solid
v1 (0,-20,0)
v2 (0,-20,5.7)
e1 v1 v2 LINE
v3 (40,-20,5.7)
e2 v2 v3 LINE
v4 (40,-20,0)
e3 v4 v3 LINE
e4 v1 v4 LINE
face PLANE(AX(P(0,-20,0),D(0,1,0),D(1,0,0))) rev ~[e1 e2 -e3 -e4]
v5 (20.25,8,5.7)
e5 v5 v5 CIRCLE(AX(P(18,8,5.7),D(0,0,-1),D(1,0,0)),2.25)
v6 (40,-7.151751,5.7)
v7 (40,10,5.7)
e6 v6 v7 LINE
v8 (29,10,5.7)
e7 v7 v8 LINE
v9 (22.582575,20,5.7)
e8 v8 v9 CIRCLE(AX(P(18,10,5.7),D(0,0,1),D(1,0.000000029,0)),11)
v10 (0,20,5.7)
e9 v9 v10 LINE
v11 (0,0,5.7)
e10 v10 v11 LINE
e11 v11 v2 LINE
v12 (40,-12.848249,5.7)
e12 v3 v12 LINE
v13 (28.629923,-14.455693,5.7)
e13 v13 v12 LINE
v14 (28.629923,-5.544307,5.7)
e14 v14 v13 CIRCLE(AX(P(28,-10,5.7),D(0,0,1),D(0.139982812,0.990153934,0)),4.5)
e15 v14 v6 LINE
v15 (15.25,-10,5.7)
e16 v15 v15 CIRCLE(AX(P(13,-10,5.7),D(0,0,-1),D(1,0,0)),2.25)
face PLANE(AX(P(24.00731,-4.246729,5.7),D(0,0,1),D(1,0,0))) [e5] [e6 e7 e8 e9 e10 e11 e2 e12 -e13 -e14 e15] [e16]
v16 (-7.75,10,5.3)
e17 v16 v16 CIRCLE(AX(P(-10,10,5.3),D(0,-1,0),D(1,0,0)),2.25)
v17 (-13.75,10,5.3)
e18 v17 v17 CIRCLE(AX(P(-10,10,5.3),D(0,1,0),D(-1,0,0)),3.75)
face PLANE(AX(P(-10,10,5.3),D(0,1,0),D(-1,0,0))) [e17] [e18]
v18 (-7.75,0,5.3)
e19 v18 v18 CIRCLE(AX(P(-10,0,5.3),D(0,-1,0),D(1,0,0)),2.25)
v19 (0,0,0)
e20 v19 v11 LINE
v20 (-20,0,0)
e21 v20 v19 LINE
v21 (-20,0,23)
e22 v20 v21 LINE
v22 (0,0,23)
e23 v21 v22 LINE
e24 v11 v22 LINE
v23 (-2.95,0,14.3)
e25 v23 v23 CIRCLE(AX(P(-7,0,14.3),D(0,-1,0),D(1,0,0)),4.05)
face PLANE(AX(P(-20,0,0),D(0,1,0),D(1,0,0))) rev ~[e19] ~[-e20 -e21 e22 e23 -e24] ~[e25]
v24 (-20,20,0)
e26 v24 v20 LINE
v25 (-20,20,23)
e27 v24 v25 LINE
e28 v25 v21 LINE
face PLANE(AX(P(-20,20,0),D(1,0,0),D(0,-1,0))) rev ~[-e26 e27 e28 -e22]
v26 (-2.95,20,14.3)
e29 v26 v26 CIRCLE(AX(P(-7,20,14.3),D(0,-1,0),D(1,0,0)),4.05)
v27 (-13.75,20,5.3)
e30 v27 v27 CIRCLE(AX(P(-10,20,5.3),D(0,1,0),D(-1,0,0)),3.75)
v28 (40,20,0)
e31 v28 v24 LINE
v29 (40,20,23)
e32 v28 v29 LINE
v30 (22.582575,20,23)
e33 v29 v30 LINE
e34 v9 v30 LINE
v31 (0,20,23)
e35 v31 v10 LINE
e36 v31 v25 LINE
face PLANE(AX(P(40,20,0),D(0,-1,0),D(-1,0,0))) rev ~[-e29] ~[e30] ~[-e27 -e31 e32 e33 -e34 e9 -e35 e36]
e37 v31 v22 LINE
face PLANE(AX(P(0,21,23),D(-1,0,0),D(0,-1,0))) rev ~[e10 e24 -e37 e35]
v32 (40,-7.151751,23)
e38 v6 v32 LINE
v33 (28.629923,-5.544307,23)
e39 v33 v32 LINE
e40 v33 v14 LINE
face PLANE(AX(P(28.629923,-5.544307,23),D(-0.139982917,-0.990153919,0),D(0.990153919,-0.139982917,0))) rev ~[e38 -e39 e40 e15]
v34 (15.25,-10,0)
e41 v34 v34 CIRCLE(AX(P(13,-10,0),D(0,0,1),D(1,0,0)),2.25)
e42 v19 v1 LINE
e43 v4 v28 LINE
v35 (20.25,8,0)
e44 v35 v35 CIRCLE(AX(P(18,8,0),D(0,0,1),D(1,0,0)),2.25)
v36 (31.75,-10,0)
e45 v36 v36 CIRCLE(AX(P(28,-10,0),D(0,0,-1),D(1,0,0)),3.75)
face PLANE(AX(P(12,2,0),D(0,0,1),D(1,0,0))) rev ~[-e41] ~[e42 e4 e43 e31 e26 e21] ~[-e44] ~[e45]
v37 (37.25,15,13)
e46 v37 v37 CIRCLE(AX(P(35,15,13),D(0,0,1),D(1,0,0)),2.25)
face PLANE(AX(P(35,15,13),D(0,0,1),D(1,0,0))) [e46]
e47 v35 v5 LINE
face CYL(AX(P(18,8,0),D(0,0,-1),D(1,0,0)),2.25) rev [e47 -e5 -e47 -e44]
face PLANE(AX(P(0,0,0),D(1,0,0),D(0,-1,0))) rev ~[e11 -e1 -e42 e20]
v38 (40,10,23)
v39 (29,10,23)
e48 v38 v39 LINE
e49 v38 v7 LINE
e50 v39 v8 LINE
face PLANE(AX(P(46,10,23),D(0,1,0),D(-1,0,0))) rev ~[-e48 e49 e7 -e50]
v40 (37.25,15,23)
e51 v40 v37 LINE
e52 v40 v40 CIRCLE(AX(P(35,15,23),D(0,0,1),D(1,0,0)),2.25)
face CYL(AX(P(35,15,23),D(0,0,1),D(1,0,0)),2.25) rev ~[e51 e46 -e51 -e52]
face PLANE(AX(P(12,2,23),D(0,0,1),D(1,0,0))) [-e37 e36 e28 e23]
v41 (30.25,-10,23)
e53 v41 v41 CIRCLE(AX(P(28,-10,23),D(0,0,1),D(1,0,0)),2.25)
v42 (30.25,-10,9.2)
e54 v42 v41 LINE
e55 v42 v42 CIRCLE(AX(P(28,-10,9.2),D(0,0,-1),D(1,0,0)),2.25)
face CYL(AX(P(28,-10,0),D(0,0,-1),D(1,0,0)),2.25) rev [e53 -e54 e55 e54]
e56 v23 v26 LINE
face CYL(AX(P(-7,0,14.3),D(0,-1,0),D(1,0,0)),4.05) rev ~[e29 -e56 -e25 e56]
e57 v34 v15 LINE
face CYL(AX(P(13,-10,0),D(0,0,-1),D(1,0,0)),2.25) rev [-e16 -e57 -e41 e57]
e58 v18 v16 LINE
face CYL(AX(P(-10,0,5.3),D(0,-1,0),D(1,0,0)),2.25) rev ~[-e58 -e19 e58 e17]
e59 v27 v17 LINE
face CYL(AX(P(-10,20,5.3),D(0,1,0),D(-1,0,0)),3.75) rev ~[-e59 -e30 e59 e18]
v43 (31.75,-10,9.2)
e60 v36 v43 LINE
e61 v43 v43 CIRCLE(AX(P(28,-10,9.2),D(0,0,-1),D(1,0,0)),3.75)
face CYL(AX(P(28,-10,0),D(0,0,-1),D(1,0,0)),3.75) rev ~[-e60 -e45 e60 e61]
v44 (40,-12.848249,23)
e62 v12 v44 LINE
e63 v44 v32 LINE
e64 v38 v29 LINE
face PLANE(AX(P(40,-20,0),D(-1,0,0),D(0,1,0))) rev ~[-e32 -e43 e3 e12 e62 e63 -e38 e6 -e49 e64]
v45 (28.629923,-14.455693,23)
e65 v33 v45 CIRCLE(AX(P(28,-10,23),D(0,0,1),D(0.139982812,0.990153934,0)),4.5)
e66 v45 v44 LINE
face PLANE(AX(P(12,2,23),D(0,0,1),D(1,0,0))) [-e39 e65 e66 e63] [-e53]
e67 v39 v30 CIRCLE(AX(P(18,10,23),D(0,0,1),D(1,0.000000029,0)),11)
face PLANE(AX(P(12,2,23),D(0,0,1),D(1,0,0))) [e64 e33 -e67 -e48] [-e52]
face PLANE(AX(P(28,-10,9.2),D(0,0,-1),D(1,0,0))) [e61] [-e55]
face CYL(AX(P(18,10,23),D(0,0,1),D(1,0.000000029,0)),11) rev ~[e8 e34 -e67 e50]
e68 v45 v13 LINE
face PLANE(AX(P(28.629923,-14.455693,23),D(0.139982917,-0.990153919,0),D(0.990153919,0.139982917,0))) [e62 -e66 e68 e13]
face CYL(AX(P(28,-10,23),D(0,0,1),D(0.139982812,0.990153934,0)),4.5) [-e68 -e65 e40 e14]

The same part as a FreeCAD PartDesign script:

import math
import FreeCAD as App
import Part
import Sketcher
from FreeCAD import Vector


def add_polygon(sketch, points):
    """Adds a closed chain of lines whose ends are joined by coincident constraints."""
    first, n = sketch.GeometryCount, len(points)
    for a, b in zip(points, points[1:] + points[:1]):
        sketch.addGeometry(Part.LineSegment(App.Vector(*a, 0), App.Vector(*b, 0)), False)
    for i in range(n):
        sketch.addConstraint(Sketcher.Constraint("Coincident", first + i, 2, first + (i + 1) % n, 1))

doc = App.newDocument("Part")
body = doc.addObject("PartDesign::Body", "Body")

# Sketch on XY plane
sketch1 = body.newObject("Sketcher::SketchObject", "Sketch")
sketch1.AttachmentSupport = (doc.getObject("XY_Plane"), [""])
sketch1.MapMode = "FlatFace"
add_polygon(sketch1, [(0, -20), (40, -20), (40, 20), (-20, 20), (-20, 0), (0, 0)])  # lines 0-5
sketch1.addGeometry(Part.Circle(Vector(13, -10, 0), Vector(0, 0, 1), 2.2), False)  # 6
sketch1.addGeometry(Part.Circle(Vector(28, -10, 0), Vector(0, 0, 1), 2.2), False)  # 7
sketch1.addGeometry(Part.Circle(Vector(18, 8, 0), Vector(0, 0, 1), 2.2), False)  # 8
sketch1.addConstraint([
    Sketcher.Constraint("Horizontal", 0),
    Sketcher.Constraint("Vertical", 1),
    Sketcher.Constraint("Horizontal", 2),
    Sketcher.Constraint("Vertical", 3),
    Sketcher.Constraint("Horizontal", 4),
    Sketcher.Constraint("Vertical", 5),
    Sketcher.Constraint("Coincident", 4, 2, -1, 1),
    Sketcher.Constraint("Equal", 6, 7),
    Sketcher.Constraint("Equal", 7, 8),
    Sketcher.Constraint("Horizontal", 6, 3, 7, 3),
    Sketcher.Constraint("Equal", 0, 1),
    Sketcher.Constraint("Equal", 4, 3),
    Sketcher.Constraint("Equal", 3, 5),
    Sketcher.Constraint("Diameter", 6, 4.5),
    Sketcher.Constraint("DistanceX", 0, 1, 0, 2, 40.0),
    Sketcher.Constraint("DistanceX", -1, 1, 6, 3, 13.0),
    Sketcher.Constraint("DistanceY", 6, 3, -1, 1, 10.0),
    Sketcher.Constraint("DistanceX", -1, 1, 7, 3, 28.0),
    Sketcher.Constraint("DistanceX", -1, 1, 8, 3, 18.0),
    Sketcher.Constraint("DistanceY", -1, 1, 8, 3, 8.0),
])
pad1 = body.newObject("PartDesign::Pad", "Pad")
pad1.Profile = sketch1
pad1.Length = 23

# Sketch on XY plane
sketch2 = body.newObject("Sketcher::SketchObject", "Sketch001")
sketch2.AttachmentSupport = (doc.getObject("XY_Plane"), [""])
sketch2.MapMode = "FlatFace"
sketch2.AttachmentOffset = App.Placement(Vector(0, 0, 23), App.Rotation())
sketch2.addGeometry([
    Part.LineSegment(Vector(46, 10, 0), Vector(29, 10, 0)),  # 0
    Part.ArcOfCircle(Part.Circle(Vector(18, 10, 0), Vector(0, 0, 1), 11), math.radians(0), math.radians(90)),  # 1
    Part.LineSegment(Vector(18, 21, 0), Vector(0, 21, 0)),  # 2
    Part.LineSegment(Vector(0, 21, 0), Vector(0, -23, 0)),  # 3
    Part.LineSegment(Vector(0, -23, 0), Vector(46, -23, 0)),  # 4
    Part.LineSegment(Vector(46, -23, 0), Vector(46, -12, 0)),  # 5
    Part.LineSegment(Vector(46, -12, 0), Vector(28.6, -14.5, 0)),  # 6
    Part.ArcOfCircle(Part.Circle(Vector(28, -10, 0), Vector(0, 0, 1), 4.5), math.radians(82), math.radians(278)),  # 7
    Part.LineSegment(Vector(28.6, -5.5, 0), Vector(46, -8, 0)),  # 8
    Part.LineSegment(Vector(46, -8, 0), Vector(46, 10, 0)),  # 9
], False)
sketch2.addConstraint([
    Sketcher.Constraint("Coincident", 0, 2, 1, 1),
    Sketcher.Constraint("Coincident", 1, 2, 2, 1),
    Sketcher.Constraint("Coincident", 2, 2, 3, 1),
    Sketcher.Constraint("Coincident", 3, 2, 4, 1),
    Sketcher.Constraint("Coincident", 4, 2, 5, 1),
    Sketcher.Constraint("Coincident", 5, 2, 6, 1),
    Sketcher.Constraint("Tangent", 6, 2, 7, 2),
    Sketcher.Constraint("Tangent", 7, 1, 8, 1),
    Sketcher.Constraint("Coincident", 8, 2, 9, 1),
    Sketcher.Constraint("Coincident", 9, 2, 0, 1),
    Sketcher.Constraint("Horizontal", 0),
    Sketcher.Constraint("Horizontal", 2),
    Sketcher.Constraint("Vertical", 3),
    Sketcher.Constraint("Horizontal", 4),
    Sketcher.Constraint("Vertical", 5),
    Sketcher.Constraint("Vertical", 9),
    Sketcher.Constraint("PointOnObject", 2, 2, -2),
    Sketcher.Constraint("Horizontal", 1, 3, 0, 2),
    Sketcher.Constraint("Vertical", 6, 2, 7, 1),
    Sketcher.Constraint("Vertical", 5, 2, 8, 2),
    Sketcher.Constraint("Radius", 1, 11.0),
    Sketcher.Constraint("Radius", 7, 4.5),
    Sketcher.Constraint("DistanceX", 0, 2, 0, 1, 17.0),
    Sketcher.Constraint("DistanceX", 4, 1, 4, 2, 46.0),
    Sketcher.Constraint("DistanceY", 3, 2, 3, 1, 44.0),
    Sketcher.Constraint("DistanceY", 5, 1, 5, 2, 11.0),
    Sketcher.Constraint("DistanceY", 9, 1, 9, 2, 18.0),
    Sketcher.Constraint("DistanceY", -1, 1, 1, 3, 10.0),
    Sketcher.Constraint("DistanceX", -1, 1, 7, 3, 28.0),
    Sketcher.Constraint("DistanceX", 2, 2, 2, 1, 17.999956),
])
pocket1 = body.newObject("PartDesign::Pocket", "Pocket")
pocket1.Profile = sketch2
pocket1.Length = 17.3

# Sketch on XZ plane
sketch3 = body.newObject("Sketcher::SketchObject", "Sketch002")
sketch3.AttachmentSupport = (doc.getObject("XZ_Plane"), [""])
sketch3.MapMode = "FlatFace"
sketch3.addGeometry([
    Part.Circle(Vector(-7, 14.3, 0), Vector(0, 0, 1), 4),
    Part.Circle(Vector(-10, 5.3, 0), Vector(0, 0, 1), 2.2),
], False)
sketch3.addConstraint([
    Sketcher.Constraint("Diameter", 0, 8.1),
    Sketcher.Constraint("Diameter", 1, 4.5),
    Sketcher.Constraint("DistanceX", 0, 3, -1, 1, 7.0),
    Sketcher.Constraint("DistanceX", 1, 3, -1, 1, 10.0),
    Sketcher.Constraint("DistanceY", 1, 3, 0, 3, 9.0),
    Sketcher.Constraint("DistanceY", -1, 1, 0, 3, 14.3),
])
pocket2 = body.newObject("PartDesign::Pocket", "Pocket001")
pocket2.Profile = sketch3
pocket2.Type = "ThroughAll"

# Sketch on XY plane
sketch4 = body.newObject("Sketcher::SketchObject", "Sketch003")
sketch4.AttachmentSupport = (doc.getObject("XY_Plane"), [""])
sketch4.MapMode = "FlatFace"
sketch4.AttachmentOffset = App.Placement(Vector(0, 0, 23), App.Rotation())
sketch4.addGeometry(Part.Circle(Vector(35, 15, 0), Vector(0, 0, 1), 2.2), False)
sketch4.addConstraint([
    Sketcher.Constraint("Diameter", 0, 4.5),
    Sketcher.Constraint("DistanceX", -1, 1, 0, 3, 35.0),
    Sketcher.Constraint("DistanceY", -1, 1, 0, 3, 15.0),
])
pocket3 = body.newObject("PartDesign::Pocket", "Pocket002")
pocket3.Profile = sketch4
pocket3.Length = 10

# Sketch on XZ plane
sketch5 = body.newObject("Sketcher::SketchObject", "Sketch004")
sketch5.AttachmentSupport = (doc.getObject("XZ_Plane"), [""])
sketch5.MapMode = "FlatFace"
sketch5.AttachmentOffset = App.Placement(Vector(0, 0, -20), App.Rotation())
sketch5.addGeometry(Part.Circle(Vector(-10, 5.3, 0), Vector(0, 0, 1), 3.8), False)
sketch5.addConstraint([
    Sketcher.Constraint("Diameter", 0, 7.5),
    Sketcher.Constraint("DistanceX", 0, 3, -1, 1, 10.0),
    Sketcher.Constraint("DistanceY", -1, 1, 0, 3, 5.3),
])
pocket4 = body.newObject("PartDesign::Pocket", "Pocket003")
pocket4.Profile = sketch5
pocket4.Length = 10
pocket4.Reversed = True

# Sketch on XY plane
sketch6 = body.newObject("Sketcher::SketchObject", "Sketch005")
sketch6.AttachmentSupport = (doc.getObject("XY_Plane"), [""])
sketch6.MapMode = "FlatFace"
sketch6.addGeometry(Part.Circle(Vector(28, -10, 0), Vector(0, 0, 1), 3.8), False)
sketch6.addConstraint([
    Sketcher.Constraint("Diameter", 0, 7.5),
    Sketcher.Constraint("DistanceX", -1, 1, 0, 3, 28.0),
    Sketcher.Constraint("DistanceY", 0, 3, -1, 1, 10.0),
])
pocket5 = body.newObject("PartDesign::Pocket", "Pocket004")
pocket5.Profile = sketch6
pocket5.Length = 9.2
pocket5.Reversed = True

doc.recompute()
